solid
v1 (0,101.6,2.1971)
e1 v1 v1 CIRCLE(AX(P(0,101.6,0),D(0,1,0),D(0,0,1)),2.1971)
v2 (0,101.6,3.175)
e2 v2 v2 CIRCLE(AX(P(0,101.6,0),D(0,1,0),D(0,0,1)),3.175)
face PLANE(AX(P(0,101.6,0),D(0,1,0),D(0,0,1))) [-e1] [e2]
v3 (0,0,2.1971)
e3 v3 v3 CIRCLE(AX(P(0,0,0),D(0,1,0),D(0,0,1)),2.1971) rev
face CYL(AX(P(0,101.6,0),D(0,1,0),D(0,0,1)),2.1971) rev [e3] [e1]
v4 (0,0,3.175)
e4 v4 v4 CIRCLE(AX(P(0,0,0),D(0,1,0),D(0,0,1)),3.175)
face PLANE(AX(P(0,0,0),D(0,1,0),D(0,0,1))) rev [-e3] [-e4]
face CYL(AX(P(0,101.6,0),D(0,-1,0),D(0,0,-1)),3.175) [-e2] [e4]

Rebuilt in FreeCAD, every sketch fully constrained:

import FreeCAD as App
import Part
import Sketcher
Q = App.Units.Quantity

doc = App.newDocument("Part")
body = doc.addObject("PartDesign::Body", "Body")

sketch1 = body.newObject("Sketcher::SketchObject", "Sketch")
sketch1.AttachmentSupport = (doc.getObject("XZ_Plane"), [""])
sketch1.MapMode = "FlatFace"
sketch1.addGeometry(Part.Circle(App.Vector(0, 0, 0), App.Vector(0, 0, 1), 3.175), False)
sketch1.addConstraint(Sketcher.Constraint("Coincident", 0, 3, -1, 1))
sketch1.addConstraint(Sketcher.Constraint("Diameter", 0, Q("0.25 in")))
pad1 = body.newObject("PartDesign::Pad", "Pad")
pad1.Profile = sketch1
pad1.Length = Q("4 in")
pad1.Reversed = True

sketch2 = body.newObject("Sketcher::SketchObject", "Sketch001")
sketch2.AttachmentSupport = (doc.getObject("XZ_Plane"), [""])
sketch2.MapMode = "FlatFace"
sketch2.AttachmentOffset = App.Placement(App.Vector(0, 0, -4 * 25.4), App.Rotation())
sketch2.addGeometry(Part.Circle(App.Vector(0, 0, 0), App.Vector(0, 0, 1), 2.1971), False)
sketch2.addConstraint(Sketcher.Constraint("Coincident", 0, 3, -1, 1))
sketch2.addConstraint(Sketcher.Constraint("Diameter", 0, Q("0.173 in")))
doc.recompute()
hole = body.newObject("PartDesign::Hole", "Hole")
hole.Profile = sketch2
hole.ThreadType = "None"
hole.Diameter = Q("0.173 in")
hole.DepthType = "ThroughAll"
hole.Reversed = True

doc.recompute()
